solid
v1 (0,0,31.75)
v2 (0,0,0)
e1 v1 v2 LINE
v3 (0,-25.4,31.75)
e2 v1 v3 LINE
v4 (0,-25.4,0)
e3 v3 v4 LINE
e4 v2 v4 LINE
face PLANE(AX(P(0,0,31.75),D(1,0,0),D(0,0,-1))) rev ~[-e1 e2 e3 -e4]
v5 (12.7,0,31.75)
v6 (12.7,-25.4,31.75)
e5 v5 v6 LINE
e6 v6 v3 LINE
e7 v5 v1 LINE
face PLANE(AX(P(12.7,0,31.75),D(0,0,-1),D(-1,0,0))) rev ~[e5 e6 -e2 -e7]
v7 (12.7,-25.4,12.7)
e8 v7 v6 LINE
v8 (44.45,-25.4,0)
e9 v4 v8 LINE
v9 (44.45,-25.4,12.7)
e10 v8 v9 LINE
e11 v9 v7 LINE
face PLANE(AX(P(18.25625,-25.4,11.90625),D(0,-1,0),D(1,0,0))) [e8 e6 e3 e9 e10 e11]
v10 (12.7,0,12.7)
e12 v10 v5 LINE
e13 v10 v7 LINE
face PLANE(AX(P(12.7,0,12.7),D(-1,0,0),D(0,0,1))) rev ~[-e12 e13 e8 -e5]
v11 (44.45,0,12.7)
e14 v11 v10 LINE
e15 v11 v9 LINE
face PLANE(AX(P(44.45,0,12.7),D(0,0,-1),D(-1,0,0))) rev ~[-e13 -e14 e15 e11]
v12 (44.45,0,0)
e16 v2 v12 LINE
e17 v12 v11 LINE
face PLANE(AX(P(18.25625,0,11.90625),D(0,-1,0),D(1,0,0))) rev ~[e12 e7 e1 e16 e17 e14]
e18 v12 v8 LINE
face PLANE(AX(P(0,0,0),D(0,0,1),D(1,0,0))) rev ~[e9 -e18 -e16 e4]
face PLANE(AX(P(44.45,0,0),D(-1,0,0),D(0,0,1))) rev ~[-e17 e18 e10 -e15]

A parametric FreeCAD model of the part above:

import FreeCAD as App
import Part
import Sketcher
from FreeCAD import Vector
Q = App.Units.Quantity

doc = App.newDocument("Part")
body = doc.addObject("PartDesign::Body", "Body")

sketch1 = body.newObject("Sketcher::SketchObject", "Sketch")
sketch1.AttachmentSupport = (doc.getObject("XZ_Plane"), [""])
sketch1.MapMode = "FlatFace"
sketch1.addGeometry([
    Part.LineSegment(Vector(0, 31.75, 0), Vector(0, 0, 0)),
    Part.LineSegment(Vector(0, 0, 0), Vector(44.45, 0, 0)),
    Part.LineSegment(Vector(44.45, 0, 0), Vector(44.45, 12.7, 0)),
    Part.LineSegment(Vector(44.45, 12.7, 0), Vector(12.7, 12.7, 0)),
    Part.LineSegment(Vector(12.7, 12.7, 0), Vector(12.7, 31.75, 0)),
    Part.LineSegment(Vector(12.7, 31.75, 0), Vector(0, 31.75, 0)),
], False)
sketch1.addConstraint([
    Sketcher.Constraint("Coincident", 0, 2, 1, 1),
    Sketcher.Constraint("Coincident", 1, 2, 2, 1),
    Sketcher.Constraint("Coincident", 2, 2, 3, 1),
    Sketcher.Constraint("Coincident", 3, 2, 4, 1),
    Sketcher.Constraint("Coincident", 4, 2, 5, 1),
    Sketcher.Constraint("Coincident", 5, 2, 0, 1),
    Sketcher.Constraint("Vertical", 0),
    Sketcher.Constraint("Horizontal", 1),
    Sketcher.Constraint("Vertical", 2),
    Sketcher.Constraint("Horizontal", 3),
    Sketcher.Constraint("Vertical", 4),
    Sketcher.Constraint("Horizontal", 5),
    Sketcher.Constraint("Coincident", 0, 2, -1, 1),
    Sketcher.Constraint("Equal", 3, 0),
    Sketcher.Constraint("Equal", 5, 2),
    Sketcher.Constraint("DistanceX", 5, 2, 5, 1, Q("0.5 in")),
    Sketcher.Constraint("DistanceX", 1, 1, 1, 2, Q("1.75 in")),
])
pad1 = body.newObject("PartDesign::Pad", "Pad")
pad1.Profile = sketch1
pad1.Length = Q("1 in")

sketch2 = body.newObject("Sketcher::SketchObject", "Sketch001")
sketch2.AttachmentSupport = (doc.getObject("YZ_Plane"), [""])
sketch2.MapMode = "FlatFace"
sketch2.AttachmentOffset = App.Placement(Vector(0, 0, 1.75 * 25.4), App.Rotation())
sketch2.addGeometry([
    Part.LineSegment(Vector(-16.221602, 31.75, 0), Vector(-16.221602, 12.7, 0)),
    Part.LineSegment(Vector(-16.221602, 12.7, 0), Vector(-9.871602, 12.7, 0)),
    Part.LineSegment(Vector(-9.871602, 12.7, 0), Vector(-9.871602, 31.75, 0)),
    Part.LineSegment(Vector(-9.871602, 31.75, 0), Vector(-16.221602, 31.75, 0)),
], False)
sketch2.addConstraint([
    Sketcher.Constraint("Coincident", 0, 2, 1, 1),
    Sketcher.Constraint("Coincident", 1, 2, 2, 1),
    Sketcher.Constraint("Coincident", 2, 2, 3, 1),
    Sketcher.Constraint("Coincident", 3, 2, 0, 1),
    Sketcher.Constraint("Vertical", 0),
    Sketcher.Constraint("Horizontal", 1),
    Sketcher.Constraint("Vertical", 2),
    Sketcher.Constraint("Horizontal", 3),
    Sketcher.Constraint("DistanceX", 1, 1, 1, 2, Q("0.25 in")),
    Sketcher.Constraint("DistanceY", 0, 2, 0, 1, Q("0.75 in")),
    Sketcher.Constraint("DistanceY", -1, 1, 0, 2, Q("0.5 in")),
    Sketcher.Constraint("DistanceX", 1, 2, -1, 1, Q("9.871602 mm")),
])
pocket1 = body.newObject("PartDesign::Pocket", "Pocket")
pocket1.Profile = sketch2
pocket1.Length = Q("1 in")

doc.recompute()
